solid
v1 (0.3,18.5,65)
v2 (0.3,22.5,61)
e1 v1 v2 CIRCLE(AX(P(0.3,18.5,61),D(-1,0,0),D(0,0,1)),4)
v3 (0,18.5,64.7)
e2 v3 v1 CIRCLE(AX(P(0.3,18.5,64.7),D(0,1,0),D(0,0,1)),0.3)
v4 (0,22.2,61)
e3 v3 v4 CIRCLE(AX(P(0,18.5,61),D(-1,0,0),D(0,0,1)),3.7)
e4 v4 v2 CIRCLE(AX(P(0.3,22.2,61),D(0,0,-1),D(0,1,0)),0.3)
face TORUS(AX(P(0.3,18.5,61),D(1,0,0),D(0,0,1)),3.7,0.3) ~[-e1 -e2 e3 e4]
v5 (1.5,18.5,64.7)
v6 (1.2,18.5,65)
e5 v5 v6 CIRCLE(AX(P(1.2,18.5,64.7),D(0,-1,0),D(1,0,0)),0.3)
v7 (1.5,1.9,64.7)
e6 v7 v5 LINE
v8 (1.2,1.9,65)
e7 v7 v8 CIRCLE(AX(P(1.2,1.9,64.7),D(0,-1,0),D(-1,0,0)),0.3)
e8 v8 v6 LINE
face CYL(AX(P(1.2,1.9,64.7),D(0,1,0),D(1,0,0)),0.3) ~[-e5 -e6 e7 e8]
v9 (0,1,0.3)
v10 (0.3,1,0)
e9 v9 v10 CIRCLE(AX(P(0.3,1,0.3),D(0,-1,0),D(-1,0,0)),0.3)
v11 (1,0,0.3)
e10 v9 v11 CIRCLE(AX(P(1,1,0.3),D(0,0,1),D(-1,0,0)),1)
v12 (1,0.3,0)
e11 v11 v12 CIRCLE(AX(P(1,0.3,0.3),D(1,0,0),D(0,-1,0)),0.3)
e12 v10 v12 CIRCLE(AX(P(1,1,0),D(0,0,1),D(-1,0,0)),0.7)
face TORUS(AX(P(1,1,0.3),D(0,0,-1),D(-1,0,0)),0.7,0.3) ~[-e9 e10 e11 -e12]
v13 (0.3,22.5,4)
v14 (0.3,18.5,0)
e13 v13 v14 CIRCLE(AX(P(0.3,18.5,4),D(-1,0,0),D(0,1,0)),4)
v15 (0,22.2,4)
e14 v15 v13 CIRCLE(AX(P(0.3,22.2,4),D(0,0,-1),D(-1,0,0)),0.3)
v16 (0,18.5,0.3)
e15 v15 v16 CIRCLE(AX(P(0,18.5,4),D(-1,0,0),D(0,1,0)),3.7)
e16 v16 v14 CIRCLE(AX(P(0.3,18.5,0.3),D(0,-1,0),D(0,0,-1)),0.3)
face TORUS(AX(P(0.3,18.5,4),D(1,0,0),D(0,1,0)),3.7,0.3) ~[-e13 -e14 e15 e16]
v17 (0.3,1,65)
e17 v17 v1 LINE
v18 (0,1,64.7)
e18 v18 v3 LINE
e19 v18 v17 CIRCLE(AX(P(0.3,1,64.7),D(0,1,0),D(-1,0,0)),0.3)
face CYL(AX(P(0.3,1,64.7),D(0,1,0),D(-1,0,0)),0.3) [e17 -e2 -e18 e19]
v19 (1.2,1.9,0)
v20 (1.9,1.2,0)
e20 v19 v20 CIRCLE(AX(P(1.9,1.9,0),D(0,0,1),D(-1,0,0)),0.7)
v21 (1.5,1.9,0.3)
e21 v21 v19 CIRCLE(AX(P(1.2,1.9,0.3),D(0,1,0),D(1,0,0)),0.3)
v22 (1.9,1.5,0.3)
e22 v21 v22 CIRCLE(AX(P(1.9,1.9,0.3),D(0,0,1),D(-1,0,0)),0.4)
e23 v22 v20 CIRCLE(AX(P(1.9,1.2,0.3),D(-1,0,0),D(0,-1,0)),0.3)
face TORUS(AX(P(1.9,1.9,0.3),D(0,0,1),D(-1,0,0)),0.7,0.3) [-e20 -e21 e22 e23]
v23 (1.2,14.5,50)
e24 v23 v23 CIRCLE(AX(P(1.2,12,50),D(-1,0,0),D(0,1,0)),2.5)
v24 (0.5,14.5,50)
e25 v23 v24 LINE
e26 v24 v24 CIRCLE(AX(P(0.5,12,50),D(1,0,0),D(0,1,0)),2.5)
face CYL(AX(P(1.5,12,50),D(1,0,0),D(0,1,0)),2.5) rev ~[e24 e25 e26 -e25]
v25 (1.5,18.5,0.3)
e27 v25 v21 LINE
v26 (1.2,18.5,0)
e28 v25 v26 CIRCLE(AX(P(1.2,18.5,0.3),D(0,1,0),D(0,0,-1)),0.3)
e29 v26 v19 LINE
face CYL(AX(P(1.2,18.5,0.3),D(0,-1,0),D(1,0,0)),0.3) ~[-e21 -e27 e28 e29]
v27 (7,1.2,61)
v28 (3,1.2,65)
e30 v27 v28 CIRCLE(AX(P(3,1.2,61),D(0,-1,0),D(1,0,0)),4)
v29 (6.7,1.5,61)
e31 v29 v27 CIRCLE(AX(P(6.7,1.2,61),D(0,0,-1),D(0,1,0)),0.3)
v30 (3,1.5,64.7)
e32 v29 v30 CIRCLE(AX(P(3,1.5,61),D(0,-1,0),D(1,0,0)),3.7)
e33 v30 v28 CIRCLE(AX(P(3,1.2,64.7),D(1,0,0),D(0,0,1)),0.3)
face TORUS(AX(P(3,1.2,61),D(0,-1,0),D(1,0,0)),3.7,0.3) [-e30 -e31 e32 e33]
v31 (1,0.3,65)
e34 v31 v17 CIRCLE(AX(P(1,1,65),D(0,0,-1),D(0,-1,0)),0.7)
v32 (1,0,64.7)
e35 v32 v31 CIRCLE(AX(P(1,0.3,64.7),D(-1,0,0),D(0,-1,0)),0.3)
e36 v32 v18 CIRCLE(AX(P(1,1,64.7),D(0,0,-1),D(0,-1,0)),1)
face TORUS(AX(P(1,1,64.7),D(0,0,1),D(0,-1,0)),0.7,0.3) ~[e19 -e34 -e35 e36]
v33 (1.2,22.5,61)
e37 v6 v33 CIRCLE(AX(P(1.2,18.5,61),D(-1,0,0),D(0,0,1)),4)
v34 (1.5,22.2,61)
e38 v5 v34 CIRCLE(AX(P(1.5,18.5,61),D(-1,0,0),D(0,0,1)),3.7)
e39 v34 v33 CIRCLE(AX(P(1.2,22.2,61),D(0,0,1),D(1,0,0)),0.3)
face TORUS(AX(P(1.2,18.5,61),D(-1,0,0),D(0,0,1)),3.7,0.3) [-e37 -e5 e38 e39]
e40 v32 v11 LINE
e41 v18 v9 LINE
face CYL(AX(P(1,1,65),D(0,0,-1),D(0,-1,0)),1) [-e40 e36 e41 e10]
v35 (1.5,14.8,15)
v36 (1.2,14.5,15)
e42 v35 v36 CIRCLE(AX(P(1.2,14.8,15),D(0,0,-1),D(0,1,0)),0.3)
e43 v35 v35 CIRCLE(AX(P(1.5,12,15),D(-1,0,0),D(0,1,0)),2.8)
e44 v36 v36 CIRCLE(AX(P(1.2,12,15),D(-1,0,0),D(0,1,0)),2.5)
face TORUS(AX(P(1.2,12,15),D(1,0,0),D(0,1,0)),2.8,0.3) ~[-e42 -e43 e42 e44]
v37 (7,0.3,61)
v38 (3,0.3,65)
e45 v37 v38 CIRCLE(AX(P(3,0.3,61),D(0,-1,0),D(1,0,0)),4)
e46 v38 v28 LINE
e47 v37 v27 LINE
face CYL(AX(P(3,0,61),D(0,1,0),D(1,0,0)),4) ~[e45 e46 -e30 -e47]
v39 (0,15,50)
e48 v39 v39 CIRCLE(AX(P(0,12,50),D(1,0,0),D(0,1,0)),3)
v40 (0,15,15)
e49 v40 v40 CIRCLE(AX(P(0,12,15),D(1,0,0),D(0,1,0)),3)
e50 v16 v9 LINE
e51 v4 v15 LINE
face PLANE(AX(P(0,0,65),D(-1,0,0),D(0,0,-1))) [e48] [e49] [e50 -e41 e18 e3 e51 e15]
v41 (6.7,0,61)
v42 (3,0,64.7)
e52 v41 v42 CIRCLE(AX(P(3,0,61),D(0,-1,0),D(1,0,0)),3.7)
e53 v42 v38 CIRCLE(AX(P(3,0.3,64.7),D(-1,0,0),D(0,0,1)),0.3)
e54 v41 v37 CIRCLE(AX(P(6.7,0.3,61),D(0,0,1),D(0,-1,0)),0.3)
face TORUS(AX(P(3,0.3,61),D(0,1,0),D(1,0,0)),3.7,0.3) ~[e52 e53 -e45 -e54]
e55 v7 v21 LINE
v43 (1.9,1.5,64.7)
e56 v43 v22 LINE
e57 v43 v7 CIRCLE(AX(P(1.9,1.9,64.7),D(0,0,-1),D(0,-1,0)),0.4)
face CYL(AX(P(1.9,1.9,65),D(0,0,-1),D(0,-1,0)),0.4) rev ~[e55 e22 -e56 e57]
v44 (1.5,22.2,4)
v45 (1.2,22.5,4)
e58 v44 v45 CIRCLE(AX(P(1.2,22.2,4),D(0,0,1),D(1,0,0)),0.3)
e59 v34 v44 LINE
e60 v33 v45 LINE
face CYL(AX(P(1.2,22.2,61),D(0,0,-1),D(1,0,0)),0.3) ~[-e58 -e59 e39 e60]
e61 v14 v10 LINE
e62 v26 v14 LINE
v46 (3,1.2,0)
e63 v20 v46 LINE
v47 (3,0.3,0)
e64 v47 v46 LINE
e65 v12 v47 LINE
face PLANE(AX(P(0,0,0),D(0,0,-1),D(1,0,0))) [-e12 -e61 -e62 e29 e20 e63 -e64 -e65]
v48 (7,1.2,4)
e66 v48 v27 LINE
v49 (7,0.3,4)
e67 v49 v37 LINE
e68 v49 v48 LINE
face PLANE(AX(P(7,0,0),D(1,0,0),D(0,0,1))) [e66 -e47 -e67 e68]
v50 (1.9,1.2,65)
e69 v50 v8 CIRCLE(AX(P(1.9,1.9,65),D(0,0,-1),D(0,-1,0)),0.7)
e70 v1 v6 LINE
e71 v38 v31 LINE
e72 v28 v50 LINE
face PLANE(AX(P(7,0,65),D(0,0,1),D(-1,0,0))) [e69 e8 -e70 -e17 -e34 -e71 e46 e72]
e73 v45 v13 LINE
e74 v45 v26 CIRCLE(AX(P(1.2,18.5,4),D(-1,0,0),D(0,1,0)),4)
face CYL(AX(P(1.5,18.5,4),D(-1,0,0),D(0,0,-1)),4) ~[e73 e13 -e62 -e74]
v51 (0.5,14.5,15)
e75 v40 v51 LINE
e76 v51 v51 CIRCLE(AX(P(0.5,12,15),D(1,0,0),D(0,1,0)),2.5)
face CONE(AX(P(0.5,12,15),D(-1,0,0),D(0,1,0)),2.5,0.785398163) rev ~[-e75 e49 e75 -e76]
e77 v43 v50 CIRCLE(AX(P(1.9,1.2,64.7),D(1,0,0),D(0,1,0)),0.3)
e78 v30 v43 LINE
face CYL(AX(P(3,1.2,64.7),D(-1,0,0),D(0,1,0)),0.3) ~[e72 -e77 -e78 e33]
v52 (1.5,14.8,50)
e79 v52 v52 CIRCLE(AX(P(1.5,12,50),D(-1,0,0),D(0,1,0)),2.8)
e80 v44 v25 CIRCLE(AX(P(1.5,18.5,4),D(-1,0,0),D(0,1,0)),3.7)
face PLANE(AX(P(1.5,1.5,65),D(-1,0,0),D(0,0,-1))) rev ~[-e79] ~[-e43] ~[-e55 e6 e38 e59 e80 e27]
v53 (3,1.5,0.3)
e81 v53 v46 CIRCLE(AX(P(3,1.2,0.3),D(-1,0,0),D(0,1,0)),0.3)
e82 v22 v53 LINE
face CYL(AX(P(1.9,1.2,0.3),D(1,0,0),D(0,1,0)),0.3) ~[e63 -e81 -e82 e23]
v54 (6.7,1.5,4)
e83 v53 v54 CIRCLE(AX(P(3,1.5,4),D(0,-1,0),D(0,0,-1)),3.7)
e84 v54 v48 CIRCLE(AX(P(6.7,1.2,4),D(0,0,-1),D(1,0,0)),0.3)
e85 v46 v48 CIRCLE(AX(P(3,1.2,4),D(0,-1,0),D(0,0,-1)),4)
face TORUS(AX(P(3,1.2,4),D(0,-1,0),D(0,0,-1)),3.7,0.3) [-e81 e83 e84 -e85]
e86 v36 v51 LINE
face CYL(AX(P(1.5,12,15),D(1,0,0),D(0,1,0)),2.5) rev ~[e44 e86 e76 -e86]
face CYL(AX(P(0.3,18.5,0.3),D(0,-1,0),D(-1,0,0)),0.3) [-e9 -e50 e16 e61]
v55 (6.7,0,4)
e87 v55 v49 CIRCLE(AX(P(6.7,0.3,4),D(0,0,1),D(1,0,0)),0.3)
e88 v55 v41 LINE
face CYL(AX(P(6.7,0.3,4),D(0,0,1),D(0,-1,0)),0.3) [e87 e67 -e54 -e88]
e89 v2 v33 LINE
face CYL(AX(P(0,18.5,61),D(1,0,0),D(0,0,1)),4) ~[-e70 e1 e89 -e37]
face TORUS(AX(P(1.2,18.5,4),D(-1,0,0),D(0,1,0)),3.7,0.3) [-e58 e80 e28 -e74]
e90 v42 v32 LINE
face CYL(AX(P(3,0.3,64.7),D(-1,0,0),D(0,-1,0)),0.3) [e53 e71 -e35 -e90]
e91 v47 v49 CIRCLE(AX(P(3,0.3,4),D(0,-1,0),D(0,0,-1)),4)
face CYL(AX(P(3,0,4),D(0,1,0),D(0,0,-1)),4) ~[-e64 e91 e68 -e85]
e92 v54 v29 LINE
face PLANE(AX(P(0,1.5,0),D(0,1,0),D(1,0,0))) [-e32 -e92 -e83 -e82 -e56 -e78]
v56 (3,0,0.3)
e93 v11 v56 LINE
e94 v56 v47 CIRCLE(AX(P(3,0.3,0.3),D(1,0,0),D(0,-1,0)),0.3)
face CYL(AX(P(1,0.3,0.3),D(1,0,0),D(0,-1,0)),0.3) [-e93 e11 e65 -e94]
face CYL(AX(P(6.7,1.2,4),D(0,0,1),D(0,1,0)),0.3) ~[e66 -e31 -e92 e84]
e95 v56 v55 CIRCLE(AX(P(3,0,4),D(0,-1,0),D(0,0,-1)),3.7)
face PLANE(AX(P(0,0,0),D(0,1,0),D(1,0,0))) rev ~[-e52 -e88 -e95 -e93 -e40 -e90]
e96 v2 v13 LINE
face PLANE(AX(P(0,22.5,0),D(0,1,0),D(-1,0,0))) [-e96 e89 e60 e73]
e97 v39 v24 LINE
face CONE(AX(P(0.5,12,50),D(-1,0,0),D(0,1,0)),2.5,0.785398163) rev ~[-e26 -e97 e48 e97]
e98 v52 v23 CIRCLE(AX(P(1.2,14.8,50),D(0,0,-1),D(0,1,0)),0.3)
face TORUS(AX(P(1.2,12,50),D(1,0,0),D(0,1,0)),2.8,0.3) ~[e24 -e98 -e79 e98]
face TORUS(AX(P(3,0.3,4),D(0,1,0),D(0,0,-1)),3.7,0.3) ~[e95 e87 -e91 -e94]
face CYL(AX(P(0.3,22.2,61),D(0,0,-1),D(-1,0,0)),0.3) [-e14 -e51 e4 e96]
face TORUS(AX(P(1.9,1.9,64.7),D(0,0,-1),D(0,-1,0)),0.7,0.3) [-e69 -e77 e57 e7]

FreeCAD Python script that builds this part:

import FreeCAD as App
import Part
import Sketcher
from FreeCAD import Vector


def edges_at(feature, points):
    """Names of the edges that pass closest to the given points."""
    edges = feature.Shape.Edges
    near = lambda p: min(range(len(edges)), key=lambda i: edges[i].distToShape(Part.Vertex(*p))[0])
    return sorted({f"Edge{near(p) + 1}" for p in points})

doc = App.newDocument("Part")
body = doc.addObject("PartDesign::Body", "Body")

sketch1 = body.newObject("Sketcher::SketchObject", "Sketch")
sketch1.AttachmentSupport = (doc.getObject("XZ_Plane"), [""])
sketch1.MapMode = "FlatFace"
sketch1.addGeometry([
    Part.LineSegment(Vector(7, 0, 0), Vector(0, 0, 0)),
    Part.LineSegment(Vector(0, 0, 0), Vector(0, 65, 0)),
    Part.LineSegment(Vector(0, 65, 0), Vector(7, 65, 0)),
    Part.LineSegment(Vector(7, 65, 0), Vector(7, 0, 0)),
], False)
sketch1.addConstraint([
    Sketcher.Constraint("Coincident", 0, 2, 1, 1),
    Sketcher.Constraint("Coincident", 1, 2, 2, 1),
    Sketcher.Constraint("Coincident", 2, 2, 3, 1),
    Sketcher.Constraint("Coincident", 3, 2, 0, 1),
    Sketcher.Constraint("Horizontal", 0),
    Sketcher.Constraint("Vertical", 1),
    Sketcher.Constraint("Horizontal", 2),
    Sketcher.Constraint("Vertical", 3),
    Sketcher.Constraint("Coincident", 0, 2, -1, 1),
    Sketcher.Constraint("DistanceX", 0, 2, 0, 1, 7.0),
    Sketcher.Constraint("DistanceY", 1, 1, 1, 2, 65.0),
])
pad1 = body.newObject("PartDesign::Pad", "Pad")
pad1.Profile = sketch1
pad1.Length = 1.5
pad1.Reversed = True

sketch2 = body.newObject("Sketcher::SketchObject", "Sketch001")
sketch2.AttachmentSupport = (doc.getObject("XZ_Plane"), [""])
sketch2.MapMode = "FlatFace"
sketch2.AttachmentOffset = App.Placement(Vector(0, 0, -1.5), App.Rotation())
sketch2.addGeometry([
    Part.LineSegment(Vector(0, 0, 0), Vector(0, 65, 0)),
    Part.LineSegment(Vector(0, 65, 0), Vector(1.5, 65, 0)),
    Part.LineSegment(Vector(1.5, 65, 0), Vector(1.5, 0, 0)),
    Part.LineSegment(Vector(1.5, 0, 0), Vector(0, 0, 0)),
], False)
sketch2.addConstraint([
    Sketcher.Constraint("Coincident", 0, 2, 1, 1),
    Sketcher.Constraint("Coincident", 1, 2, 2, 1),
    Sketcher.Constraint("Coincident", 2, 2, 3, 1),
    Sketcher.Constraint("Coincident", 3, 2, 0, 1),
    Sketcher.Constraint("Vertical", 0),
    Sketcher.Constraint("Horizontal", 1),
    Sketcher.Constraint("Vertical", 2),
    Sketcher.Constraint("Horizontal", 3),
    Sketcher.Constraint("Coincident", 3, 2, -1, 1),
    Sketcher.Constraint("DistanceX", 1, 1, 1, 2, 1.5),
    Sketcher.Constraint("DistanceY", 0, 1, 0, 2, 65.0),
])
pad2 = body.newObject("PartDesign::Pad", "Pad001")
pad2.Profile = sketch2
pad2.Length = 21
pad2.Reversed = True
doc.recompute()

fillet = body.newObject("PartDesign::Fillet", "Fillet")
fillet.Base = (pad2, edges_at(pad2, [
    (0.75, 22.5, 65),
    (7, 0.75, 65),
    (0.75, 22.5, 0),
    (7, 0.75, 0),
]))
fillet.Radius = 4

sketch3 = body.newObject("Sketcher::SketchObject", "Sketch002")
sketch3.AttachmentSupport = (doc.getObject("YZ_Plane"), [""])
sketch3.MapMode = "FlatFace"
sketch3.AttachmentOffset = App.Placement(Vector(0, 0, 1.5), App.Rotation())
sketch3.addGeometry([
    Part.Circle(Vector(12, 15, 0), Vector(0, 0, 1), 2.5),
    Part.Circle(Vector(12, 50, 0), Vector(0, 0, 1), 2.5),
], False)
sketch3.addConstraint([
    Sketcher.Constraint("Equal", 0, 1),
    Sketcher.Constraint("Vertical", 0, 3, 1, 3),
    Sketcher.Constraint("Diameter", 0, 5.0),
    Sketcher.Constraint("DistanceX", -1, 1, 0, 3, 12.0),
    Sketcher.Constraint("DistanceY", -1, 1, 0, 3, 15.0),
    Sketcher.Constraint("DistanceY", -1, 1, 1, 3, 50.0),
])
pocket1 = body.newObject("PartDesign::Pocket", "Pocket")
pocket1.Profile = sketch3
pocket1.Length = 2
doc.recompute()

chamfer = body.newObject("PartDesign::Chamfer", "Chamfer")
chamfer.Base = (pocket1, edges_at(pocket1, [(0, 9.669, 49.096), (0, 9.669, 14.096)]))
chamfer.Size = 0.5
doc.recompute()

fillet2 = body.newObject("PartDesign::Fillet", "Fillet001")
fillet2.Base = (chamfer, edges_at(chamfer, [(1.5, 1.5, 32.5)]))
fillet2.Radius = 0.4
doc.recompute()

fillet3 = body.newObject("PartDesign::Fillet", "Fillet002")
fillet3.Base = (fillet2, edges_at(fillet2, [(0, 0, 32.5)]))
fillet3.Radius = 1
doc.recompute()

fillet4 = body.newObject("PartDesign::Fillet", "Fillet003")
fillet4.Base = (fillet3, edges_at(fillet3, [
    (1.5, 22.5, 32.5),
    (1.5, 21.328, 1.172),
    (1.5, 10.2, 0),
    (1.617, 1.617, 0),
    (2.45, 1.5, 0),
    (5.828, 1.5, 1.172),
    (7, 1.5, 32.5),
    (5.828, 1.5, 63.828),
    (2.45, 1.5, 65),
    (1.617, 1.617, 65),
    (1.5, 10.2, 65),
    (1.5, 21.328, 63.828),
    (0, 21.328, 63.828),
    (0, 9.75, 65),
    (0.293, 0.293, 65),
    (2, 0, 65),
    (5.828, 0, 63.828),
    (7, 0, 32.5),
    (5.828, 0, 1.172),
    (2, 0, 0),
    (0.293, 0.293, 0),
    (0, 9.75, 0),
    (0, 21.328, 1.172),
    (0, 22.5, 32.5),
    (1.5, 9.669, 50.904),
    (1.5, 9.669, 15.904),
]))
fillet4.Radius = 0.3

doc.recompute()
